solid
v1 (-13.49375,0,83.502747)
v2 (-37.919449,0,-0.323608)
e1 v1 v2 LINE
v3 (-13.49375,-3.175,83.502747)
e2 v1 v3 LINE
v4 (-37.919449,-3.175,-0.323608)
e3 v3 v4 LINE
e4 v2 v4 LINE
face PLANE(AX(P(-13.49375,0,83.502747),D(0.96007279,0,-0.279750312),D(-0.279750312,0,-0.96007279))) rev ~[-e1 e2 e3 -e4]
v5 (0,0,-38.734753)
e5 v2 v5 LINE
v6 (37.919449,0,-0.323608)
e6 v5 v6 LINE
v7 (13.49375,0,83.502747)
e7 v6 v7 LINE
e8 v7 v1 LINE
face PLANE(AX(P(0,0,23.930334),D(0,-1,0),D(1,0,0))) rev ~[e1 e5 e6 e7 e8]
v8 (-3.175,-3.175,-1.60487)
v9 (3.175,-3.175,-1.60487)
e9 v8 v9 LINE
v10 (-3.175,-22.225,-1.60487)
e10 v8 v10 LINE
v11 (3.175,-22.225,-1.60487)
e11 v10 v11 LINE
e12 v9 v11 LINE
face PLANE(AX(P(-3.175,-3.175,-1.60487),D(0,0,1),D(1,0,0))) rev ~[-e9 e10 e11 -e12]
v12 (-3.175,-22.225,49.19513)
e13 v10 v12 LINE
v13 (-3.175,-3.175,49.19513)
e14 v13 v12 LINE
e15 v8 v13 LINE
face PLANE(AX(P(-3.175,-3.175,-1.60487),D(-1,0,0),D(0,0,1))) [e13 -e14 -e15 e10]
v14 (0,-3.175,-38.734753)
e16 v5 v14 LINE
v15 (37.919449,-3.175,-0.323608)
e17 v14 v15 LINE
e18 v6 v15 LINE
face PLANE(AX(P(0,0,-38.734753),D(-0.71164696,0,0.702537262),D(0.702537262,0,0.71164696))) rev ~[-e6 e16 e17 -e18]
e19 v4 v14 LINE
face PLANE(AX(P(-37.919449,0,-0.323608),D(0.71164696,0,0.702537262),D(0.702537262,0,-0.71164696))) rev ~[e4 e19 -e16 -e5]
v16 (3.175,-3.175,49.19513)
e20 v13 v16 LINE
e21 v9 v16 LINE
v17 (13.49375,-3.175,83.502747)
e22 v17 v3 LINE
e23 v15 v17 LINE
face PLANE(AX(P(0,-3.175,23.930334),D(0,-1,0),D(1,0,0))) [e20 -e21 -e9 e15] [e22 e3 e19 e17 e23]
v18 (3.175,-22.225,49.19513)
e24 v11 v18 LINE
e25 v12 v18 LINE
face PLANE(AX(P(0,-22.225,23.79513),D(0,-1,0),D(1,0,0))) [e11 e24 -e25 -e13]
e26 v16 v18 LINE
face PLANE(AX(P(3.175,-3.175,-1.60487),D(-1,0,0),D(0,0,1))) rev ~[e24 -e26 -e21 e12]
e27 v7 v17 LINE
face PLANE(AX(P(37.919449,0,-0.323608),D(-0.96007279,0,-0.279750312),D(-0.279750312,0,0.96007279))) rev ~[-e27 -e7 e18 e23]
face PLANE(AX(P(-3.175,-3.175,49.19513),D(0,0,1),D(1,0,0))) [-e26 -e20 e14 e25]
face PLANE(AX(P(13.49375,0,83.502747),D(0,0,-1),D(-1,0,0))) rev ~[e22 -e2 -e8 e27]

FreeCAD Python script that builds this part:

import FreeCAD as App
import Part
import Sketcher
from FreeCAD import Vector
Q = App.Units.Quantity

doc = App.newDocument("Part")
body = doc.addObject("PartDesign::Body", "Body")

sketch1 = body.newObject("Sketcher::SketchObject", "Sketch")
sketch1.AttachmentSupport = (doc.getObject("XZ_Plane"), [""])
sketch1.MapMode = "FlatFace"
sketch1.addGeometry([
    Part.LineSegment(Vector(37.919449, -0.323608, 0), Vector(13.49375, 83.502747, 0)),
    Part.LineSegment(Vector(13.49375, 83.502747, 0), Vector(-13.49375, 83.502747, 0)),
    Part.LineSegment(Vector(-13.49375, 83.502747, 0), Vector(-37.919449, -0.323608, 0)),
    Part.LineSegment(Vector(-37.919449, -0.323608, 0), Vector(0, -38.734753, 0)),
    Part.LineSegment(Vector(0, -38.734753, 0), Vector(37.919449, -0.323608, 0)),
], False)
sketch1.addConstraint([
    Sketcher.Constraint("Coincident", 0, 2, 1, 1),
    Sketcher.Constraint("Coincident", 1, 2, 2, 1),
    Sketcher.Constraint("Coincident", 2, 2, 3, 1),
    Sketcher.Constraint("Coincident", 3, 2, 4, 1),
    Sketcher.Constraint("Coincident", 4, 2, 0, 1),
    Sketcher.Constraint("Horizontal", 1),
    Sketcher.Constraint("Symmetric", 2, 2, 4, 2, -2),
    Sketcher.Constraint("PointOnObject", 3, 2, -2),
    Sketcher.Constraint("Equal", 0, 2),
    Sketcher.Constraint("DistanceX", 1, 2, 1, 1, Q("1.0625 in")),
    Sketcher.Constraint("Distance", 0, Q("3.4375 in")),
    Sketcher.Constraint("Distance", 3, Q("2.125 in")),
    Sketcher.Constraint("DistanceY", 3, 2, 0, 2, Q("4.8125 in")),
    Sketcher.Constraint("DistanceY", -1, 1, 0, 2, Q("83.502747 mm")),
])
pad1 = body.newObject("PartDesign::Pad", "Pad")
pad1.Profile = sketch1
pad1.Length = Q("0.125 in")

sketch2 = body.newObject("Sketcher::SketchObject", "Sketch001")
sketch2.AttachmentSupport = (doc.getObject("XZ_Plane"), [""])
sketch2.MapMode = "FlatFace"
sketch2.AttachmentOffset = App.Placement(Vector(0, 0, 0.125 * 25.4), App.Rotation())
sketch2.addGeometry([
    Part.LineSegment(Vector(-3.175, 49.19513, 0), Vector(-3.175, -1.60487, 0)),
    Part.LineSegment(Vector(-3.175, -1.60487, 0), Vector(3.175, -1.60487, 0)),
    Part.LineSegment(Vector(3.175, -1.60487, 0), Vector(3.175, 49.19513, 0)),
    Part.LineSegment(Vector(3.175, 49.19513, 0), Vector(-3.175, 49.19513, 0)),
], False)
sketch2.addConstraint([
    Sketcher.Constraint("Coincident", 0, 2, 1, 1),
    Sketcher.Constraint("Coincident", 1, 2, 2, 1),
    Sketcher.Constraint("Coincident", 2, 2, 3, 1),
    Sketcher.Constraint("Coincident", 3, 2, 0, 1),
    Sketcher.Constraint("Vertical", 0),
    Sketcher.Constraint("Horizontal", 1),
    Sketcher.Constraint("Vertical", 2),
    Sketcher.Constraint("Horizontal", 3),
    Sketcher.Constraint("DistanceY", 0, 2, 0, 1, Q("2 in")),
    Sketcher.Constraint("DistanceX", 1, 1, 1, 2, Q("0.25 in")),
    Sketcher.Constraint("DistanceX", 0, 2, -1, 1, Q("0.125 in")),
    Sketcher.Constraint("DistanceY", 0, 2, -1, 1, Q("1.60487 mm")),
])
pad2 = body.newObject("PartDesign::Pad", "Pad001")
pad2.Profile = sketch2
pad2.Length = Q("0.75 in")

doc.recompute()
